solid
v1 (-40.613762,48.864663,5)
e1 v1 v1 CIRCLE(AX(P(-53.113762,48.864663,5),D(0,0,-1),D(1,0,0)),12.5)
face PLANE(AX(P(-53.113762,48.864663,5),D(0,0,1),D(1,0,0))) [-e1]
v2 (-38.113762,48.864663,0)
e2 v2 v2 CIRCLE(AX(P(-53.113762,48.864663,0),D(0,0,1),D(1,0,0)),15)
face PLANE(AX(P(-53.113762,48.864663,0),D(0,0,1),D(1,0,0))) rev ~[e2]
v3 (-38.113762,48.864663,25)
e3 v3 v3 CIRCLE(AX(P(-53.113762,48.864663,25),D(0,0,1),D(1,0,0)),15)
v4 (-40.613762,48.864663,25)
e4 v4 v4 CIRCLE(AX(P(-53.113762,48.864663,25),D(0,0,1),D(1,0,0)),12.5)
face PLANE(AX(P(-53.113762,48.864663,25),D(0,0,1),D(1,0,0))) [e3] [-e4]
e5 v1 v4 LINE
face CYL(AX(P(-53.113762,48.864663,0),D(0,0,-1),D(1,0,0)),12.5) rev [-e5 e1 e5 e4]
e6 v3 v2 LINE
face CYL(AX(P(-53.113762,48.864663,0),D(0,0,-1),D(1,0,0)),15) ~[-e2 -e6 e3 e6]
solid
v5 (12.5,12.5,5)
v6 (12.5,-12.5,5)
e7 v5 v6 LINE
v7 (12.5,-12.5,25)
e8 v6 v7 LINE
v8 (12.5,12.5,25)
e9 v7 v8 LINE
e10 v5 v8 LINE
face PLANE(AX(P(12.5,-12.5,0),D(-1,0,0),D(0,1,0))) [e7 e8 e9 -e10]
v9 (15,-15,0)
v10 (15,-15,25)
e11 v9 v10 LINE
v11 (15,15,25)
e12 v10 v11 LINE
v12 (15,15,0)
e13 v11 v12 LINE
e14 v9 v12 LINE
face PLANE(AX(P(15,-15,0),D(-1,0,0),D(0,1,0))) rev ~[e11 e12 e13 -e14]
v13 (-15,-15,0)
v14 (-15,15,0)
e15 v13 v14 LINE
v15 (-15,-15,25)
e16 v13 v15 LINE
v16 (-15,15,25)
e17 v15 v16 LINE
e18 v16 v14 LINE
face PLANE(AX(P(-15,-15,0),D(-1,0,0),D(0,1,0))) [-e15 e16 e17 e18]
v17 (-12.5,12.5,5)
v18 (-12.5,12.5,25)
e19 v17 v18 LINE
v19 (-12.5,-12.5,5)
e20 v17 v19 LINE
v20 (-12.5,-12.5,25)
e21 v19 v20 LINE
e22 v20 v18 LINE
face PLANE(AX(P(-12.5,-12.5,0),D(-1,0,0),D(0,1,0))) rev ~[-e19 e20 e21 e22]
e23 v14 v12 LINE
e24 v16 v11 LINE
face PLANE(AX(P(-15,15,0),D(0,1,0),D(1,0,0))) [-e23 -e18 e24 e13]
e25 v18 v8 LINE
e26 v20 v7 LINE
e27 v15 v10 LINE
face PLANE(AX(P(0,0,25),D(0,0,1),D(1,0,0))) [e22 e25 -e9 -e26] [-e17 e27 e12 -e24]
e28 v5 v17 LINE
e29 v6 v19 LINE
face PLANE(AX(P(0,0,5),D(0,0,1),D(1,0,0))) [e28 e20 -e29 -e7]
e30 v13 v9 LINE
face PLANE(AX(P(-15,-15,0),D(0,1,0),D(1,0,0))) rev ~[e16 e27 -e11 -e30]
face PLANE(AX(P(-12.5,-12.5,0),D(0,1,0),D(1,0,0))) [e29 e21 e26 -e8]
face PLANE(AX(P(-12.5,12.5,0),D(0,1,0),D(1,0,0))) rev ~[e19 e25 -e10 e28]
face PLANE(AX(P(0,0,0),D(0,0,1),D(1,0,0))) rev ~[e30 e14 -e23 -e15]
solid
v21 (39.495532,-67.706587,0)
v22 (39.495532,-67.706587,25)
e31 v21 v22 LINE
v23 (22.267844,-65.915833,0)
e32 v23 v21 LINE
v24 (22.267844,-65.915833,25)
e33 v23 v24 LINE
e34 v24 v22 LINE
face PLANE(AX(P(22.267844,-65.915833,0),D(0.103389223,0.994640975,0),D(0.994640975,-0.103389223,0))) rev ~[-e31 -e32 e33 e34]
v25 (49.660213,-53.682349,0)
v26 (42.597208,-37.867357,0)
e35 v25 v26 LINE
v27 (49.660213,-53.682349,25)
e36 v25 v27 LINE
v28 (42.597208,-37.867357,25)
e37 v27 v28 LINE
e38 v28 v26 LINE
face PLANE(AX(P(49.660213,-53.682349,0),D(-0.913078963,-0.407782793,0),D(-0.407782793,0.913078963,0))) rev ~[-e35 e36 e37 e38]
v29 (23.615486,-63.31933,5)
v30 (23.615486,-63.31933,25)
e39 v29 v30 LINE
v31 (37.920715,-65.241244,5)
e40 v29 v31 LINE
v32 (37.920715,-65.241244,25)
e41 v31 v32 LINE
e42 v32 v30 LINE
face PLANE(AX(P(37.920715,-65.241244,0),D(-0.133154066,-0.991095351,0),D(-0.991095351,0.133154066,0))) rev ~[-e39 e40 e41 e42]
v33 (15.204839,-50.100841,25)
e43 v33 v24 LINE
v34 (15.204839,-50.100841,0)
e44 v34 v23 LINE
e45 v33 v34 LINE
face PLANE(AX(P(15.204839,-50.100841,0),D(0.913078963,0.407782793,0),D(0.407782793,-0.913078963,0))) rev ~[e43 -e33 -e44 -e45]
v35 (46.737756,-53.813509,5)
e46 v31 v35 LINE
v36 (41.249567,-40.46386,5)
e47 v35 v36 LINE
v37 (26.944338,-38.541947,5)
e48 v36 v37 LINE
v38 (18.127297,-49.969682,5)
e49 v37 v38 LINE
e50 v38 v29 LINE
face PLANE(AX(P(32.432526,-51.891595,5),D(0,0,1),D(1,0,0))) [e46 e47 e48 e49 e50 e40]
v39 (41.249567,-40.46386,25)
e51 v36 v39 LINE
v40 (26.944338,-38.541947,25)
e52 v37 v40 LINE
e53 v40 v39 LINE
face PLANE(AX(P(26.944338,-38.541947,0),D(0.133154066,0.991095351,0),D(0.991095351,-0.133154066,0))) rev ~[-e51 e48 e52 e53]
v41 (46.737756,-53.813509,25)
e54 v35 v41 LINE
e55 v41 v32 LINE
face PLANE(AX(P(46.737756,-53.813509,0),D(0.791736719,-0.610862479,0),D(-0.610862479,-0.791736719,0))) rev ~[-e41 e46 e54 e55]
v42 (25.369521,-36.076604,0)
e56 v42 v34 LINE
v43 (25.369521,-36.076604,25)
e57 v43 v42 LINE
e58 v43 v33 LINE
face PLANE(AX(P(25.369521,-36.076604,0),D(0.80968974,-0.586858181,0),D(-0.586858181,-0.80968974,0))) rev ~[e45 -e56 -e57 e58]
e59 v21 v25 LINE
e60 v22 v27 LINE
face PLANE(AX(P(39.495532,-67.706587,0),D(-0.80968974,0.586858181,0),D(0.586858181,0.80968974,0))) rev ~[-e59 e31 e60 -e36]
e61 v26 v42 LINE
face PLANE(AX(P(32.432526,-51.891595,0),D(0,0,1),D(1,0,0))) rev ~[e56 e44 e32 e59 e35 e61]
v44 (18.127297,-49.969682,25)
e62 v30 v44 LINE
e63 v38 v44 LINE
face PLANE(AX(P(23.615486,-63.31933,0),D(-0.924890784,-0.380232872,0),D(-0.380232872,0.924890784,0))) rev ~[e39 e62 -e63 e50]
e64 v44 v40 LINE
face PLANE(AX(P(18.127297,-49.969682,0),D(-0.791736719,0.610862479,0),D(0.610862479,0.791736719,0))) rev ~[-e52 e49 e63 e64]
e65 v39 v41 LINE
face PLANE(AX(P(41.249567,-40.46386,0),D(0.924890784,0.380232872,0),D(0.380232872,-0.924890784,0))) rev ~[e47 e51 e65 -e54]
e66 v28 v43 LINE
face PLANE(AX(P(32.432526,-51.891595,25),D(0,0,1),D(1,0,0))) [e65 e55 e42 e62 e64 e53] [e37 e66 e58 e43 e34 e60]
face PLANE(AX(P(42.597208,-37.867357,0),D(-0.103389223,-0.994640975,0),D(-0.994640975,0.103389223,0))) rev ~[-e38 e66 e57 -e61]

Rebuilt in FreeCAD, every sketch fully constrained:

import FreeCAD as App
import Part
import Sketcher

V = App.Vector
Q = App.Units.Quantity


def add_polygon(sketch, points):
    """Adds a closed chain of lines whose ends are joined by coincident constraints."""
    first, n = sketch.GeometryCount, len(points)
    for a, b in zip(points, points[1:] + points[:1]):
        sketch.addGeometry(Part.LineSegment(App.Vector(*a, 0), App.Vector(*b, 0)), False)
    for i in range(n):
        sketch.addConstraint(Sketcher.Constraint("Coincident", first + i, 2, first + (i + 1) % n, 1))

doc = App.newDocument("Part")
params = doc.addObject("Spreadsheet::Sheet", "Params")
for row, (alias, value) in enumerate([
    ("sketch1_width", "30 mm"),
    ("pad1_length", "5 mm"),
    ("sketch2_width", "30 mm"),
    ("sketch2_width2", "25 mm"),
    ("pad2_length", "25 mm"),
    ("sketch3_diameter", "30 mm"),
    ("pad3_length", "5 mm"),
    ("sketch4_diameter", "30 mm"),
    ("sketch4_diameter2", "25 mm"),
    ("pad4_length", "25 mm"),
    ("pad5_length", "5 mm"),
    ("pad6_length", "25 mm"),
], start=1):
    params.set(f"A{row}", alias)
    params.set(f"B{row}", "=" + value)
    params.setAlias(f"B{row}", alias)

body = doc.addObject("PartDesign::Body", "Body")

# Sketch on XY plane
sketch1 = body.newObject("Sketcher::SketchObject", "Sketch")
sketch1.AttachmentSupport = (doc.getObject("XY_Plane"), [""])
sketch1.MapMode = "FlatFace"
add_polygon(sketch1, [(-15, 15), (-15, -15), (15, -15), (15, 15)])  # lines 0-3
sketch1.addConstraint([
    Sketcher.Constraint("Vertical", 0),
    Sketcher.Constraint("Horizontal", 1),
    Sketcher.Constraint("Vertical", 2),
    Sketcher.Constraint("Horizontal", 3),
    Sketcher.Constraint("Symmetric", 0, 2, 2, 2, -1, 1),
    Sketcher.Constraint("Equal", 3, 0),
    Sketcher.Constraint("DistanceX", 1, 1, 1, 2, Q("30 mm")),
])
sketch1.setExpression("Constraints[10]", "Params.sketch1_width")
pad1 = body.newObject("PartDesign::Pad", "Pad")
pad1.Profile = sketch1
pad1.setExpression("Length", "Params.pad1_length")

# Sketch on XY plane
sketch2 = body.newObject("Sketcher::SketchObject", "Sketch001")
sketch2.AttachmentSupport = (doc.getObject("XY_Plane"), [""])
sketch2.MapMode = "FlatFace"
add_polygon(sketch2, [(-15, 15), (-15, -15), (15, -15), (15, 15)])  # lines 0-3
add_polygon(sketch2, [(12.5, -12.5), (-12.5, -12.5), (-12.5, 12.5), (12.5, 12.5)])  # lines 4-7
sketch2.addConstraint([
    Sketcher.Constraint("Vertical", 0),
    Sketcher.Constraint("Horizontal", 1),
    Sketcher.Constraint("Vertical", 2),
    Sketcher.Constraint("Horizontal", 3),
    Sketcher.Constraint("Horizontal", 4),
    Sketcher.Constraint("Vertical", 5),
    Sketcher.Constraint("Horizontal", 6),
    Sketcher.Constraint("Vertical", 7),
    Sketcher.Constraint("Symmetric", 0, 2, 2, 2, -1, 1),
    Sketcher.Constraint("Symmetric", 4, 2, 6, 2, -1, 1),
    Sketcher.Constraint("Equal", 3, 0),
    Sketcher.Constraint("Equal", 6, 5),
    Sketcher.Constraint("DistanceX", 1, 1, 1, 2, Q("30 mm")),
    Sketcher.Constraint("DistanceX", 4, 2, 4, 1, Q("25 mm")),
])
sketch2.setExpression("Constraints[20]", "Params.sketch2_width")
sketch2.setExpression("Constraints[21]", "Params.sketch2_width2")
pad2 = body.newObject("PartDesign::Pad", "Pad001")
pad2.Profile = sketch2
pad2.setExpression("Length", "Params.pad2_length")
body2 = doc.addObject("PartDesign::Body", "Body001")

# Sketch on XY plane
sketch3 = body2.newObject("Sketcher::SketchObject", "Sketch002")
sketch3.AttachmentSupport = (doc.getObject("XY_Plane001"), [""])
sketch3.MapMode = "FlatFace"
sketch3.addGeometry(Part.Circle(V(-53.113762, 48.864663, 0), V(0, 0, 1), 15), False)
sketch3.addConstraint([
    Sketcher.Constraint("Diameter", 0, Q("30 mm")),
    Sketcher.Constraint("DistanceX", 0, 3, -1, 1, Q("53.113762 mm")),
    Sketcher.Constraint("DistanceY", -1, 1, 0, 3, Q("48.864663 mm")),
])
sketch3.setExpression("Constraints[0]", "Params.sketch3_diameter")
pad3 = body2.newObject("PartDesign::Pad", "Pad002")
pad3.Profile = sketch3
pad3.setExpression("Length", "Params.pad3_length")

# Sketch on XY plane
sketch4 = body2.newObject("Sketcher::SketchObject", "Sketch003")
sketch4.AttachmentSupport = (doc.getObject("XY_Plane001"), [""])
sketch4.MapMode = "FlatFace"
sketch4.addGeometry([
    Part.Circle(V(-53.113762, 48.864663, 0), V(0, 0, 1), 15),
    Part.Circle(V(-53.113762, 48.864663, 0), V(0, 0, 1), 12.5),
], False)
sketch4.addConstraint([
    Sketcher.Constraint("Coincident", 1, 3, 0, 3),
    Sketcher.Constraint("Diameter", 0, Q("30 mm")),
    Sketcher.Constraint("Diameter", 1, Q("25 mm")),
    Sketcher.Constraint("DistanceX", 0, 3, -1, 1, Q("53.113762 mm")),
    Sketcher.Constraint("DistanceY", -1, 1, 0, 3, Q("48.864663 mm")),
])
sketch4.setExpression("Constraints[1]", "Params.sketch4_diameter")
sketch4.setExpression("Constraints[2]", "Params.sketch4_diameter2")
pad4 = body2.newObject("PartDesign::Pad", "Pad003")
pad4.Profile = sketch4
pad4.setExpression("Length", "Params.pad4_length")
body3 = doc.addObject("PartDesign::Body", "Body002")

# Sketch on XY plane
sketch5 = body3.newObject("Sketcher::SketchObject", "Sketch004")
sketch5.AttachmentSupport = (doc.getObject("XY_Plane002"), [""])
sketch5.MapMode = "FlatFace"
add_polygon(sketch5, [(15.204839, -50.100841), (22.267844, -65.915833), (39.495532, -67.706587), (49.660213, -53.682349), (42.597208, -37.867357), (25.369521, -36.076604)])  # lines 0-5
sketch5.addConstraint([
    Sketcher.Constraint("Parallel", 0, 3),
    Sketcher.Constraint("Parallel", 1, 4),
    Sketcher.Constraint("Parallel", 2, 5),
    Sketcher.Constraint("Equal", 0, 1),
    Sketcher.Constraint("Equal", 1, 2),
    Sketcher.Constraint("Equal", 2, 3),
    Sketcher.Constraint("Distance", 0, Q("17.320508 mm")),
    Sketcher.Constraint("DistanceX", -1, 1, 1, 2, Q("39.495532 mm")),
    Sketcher.Constraint("DistanceY", 2, 2, -1, 1, Q("53.682349 mm")),
    Sketcher.Constraint("DistanceX", -1, 1, 3, 2, Q("42.597208 mm")),
    Sketcher.Constraint("DistanceX", -1, 1, 4, 2, Q("25.369521 mm")),
    Sketcher.Constraint("DistanceX", -1, 1, 5, 2, Q("15.204839 mm")),
])
pad5 = body3.newObject("PartDesign::Pad", "Pad004")
pad5.Profile = sketch5
pad5.setExpression("Length", "Params.pad5_length")

# Sketch on XY plane
sketch6 = body3.newObject("Sketcher::SketchObject", "Sketch005")
sketch6.AttachmentSupport = (doc.getObject("XY_Plane002"), [""])
sketch6.MapMode = "FlatFace"
add_polygon(sketch6, [(15.204839, -50.100841), (22.267844, -65.915833), (39.495532, -67.706587), (49.660213, -53.682349), (42.597208, -37.867357), (25.369521, -36.076604)])  # lines 0-5
add_polygon(sketch6, [(46.737756, -53.813509), (37.920715, -65.241244), (23.615486, -63.31933), (18.127297, -49.969682), (26.944338, -38.541947), (41.249567, -40.46386)])  # lines 6-11
sketch6.addConstraint([
    Sketcher.Constraint("Parallel", 0, 3),
    Sketcher.Constraint("Parallel", 1, 4),
    Sketcher.Constraint("Parallel", 2, 5),
    Sketcher.Constraint("Parallel", 6, 9),
    Sketcher.Constraint("Parallel", 7, 10),
    Sketcher.Constraint("Parallel", 8, 11),
    Sketcher.Constraint("Equal", 0, 1),
    Sketcher.Constraint("Equal", 1, 2),
    Sketcher.Constraint("Equal", 2, 3),
    Sketcher.Constraint("Equal", 6, 7),
    Sketcher.Constraint("Equal", 7, 8),
    Sketcher.Constraint("Equal", 8, 9),
    Sketcher.Constraint("DistanceX", 6, 2, 2, 2, Q("11.739498 mm")),
    Sketcher.Constraint("DistanceX", 5, 2, 9, 2, Q("11.739498 mm")),
    Sketcher.Constraint("Distance", 0, Q("17.320508 mm")),
    Sketcher.Constraint("DistanceX", -1, 1, 1, 2, Q("39.495532 mm")),
    Sketcher.Constraint("DistanceY", 2, 2, -1, 1, Q("53.682349 mm")),
    Sketcher.Constraint("DistanceX", -1, 1, 3, 2, Q("42.597208 mm")),
    Sketcher.Constraint("DistanceX", -1, 1, 4, 2, Q("25.369521 mm")),
    Sketcher.Constraint("DistanceX", -1, 1, 5, 2, Q("15.204839 mm")),
    Sketcher.Constraint("DistanceY", 7, 2, -1, 1, Q("63.31933 mm")),
    Sketcher.Constraint("DistanceY", 8, 2, -1, 1, Q("49.969682 mm")),
    Sketcher.Constraint("DistanceY", 10, 2, -1, 1, Q("40.46386 mm")),
    Sketcher.Constraint("DistanceY", 0, 2, 6, 2, Q("0.674589 mm")),
])
pad6 = body3.newObject("PartDesign::Pad", "Pad005")
pad6.Profile = sketch6
pad6.setExpression("Length", "Params.pad6_length")

doc.recompute()
